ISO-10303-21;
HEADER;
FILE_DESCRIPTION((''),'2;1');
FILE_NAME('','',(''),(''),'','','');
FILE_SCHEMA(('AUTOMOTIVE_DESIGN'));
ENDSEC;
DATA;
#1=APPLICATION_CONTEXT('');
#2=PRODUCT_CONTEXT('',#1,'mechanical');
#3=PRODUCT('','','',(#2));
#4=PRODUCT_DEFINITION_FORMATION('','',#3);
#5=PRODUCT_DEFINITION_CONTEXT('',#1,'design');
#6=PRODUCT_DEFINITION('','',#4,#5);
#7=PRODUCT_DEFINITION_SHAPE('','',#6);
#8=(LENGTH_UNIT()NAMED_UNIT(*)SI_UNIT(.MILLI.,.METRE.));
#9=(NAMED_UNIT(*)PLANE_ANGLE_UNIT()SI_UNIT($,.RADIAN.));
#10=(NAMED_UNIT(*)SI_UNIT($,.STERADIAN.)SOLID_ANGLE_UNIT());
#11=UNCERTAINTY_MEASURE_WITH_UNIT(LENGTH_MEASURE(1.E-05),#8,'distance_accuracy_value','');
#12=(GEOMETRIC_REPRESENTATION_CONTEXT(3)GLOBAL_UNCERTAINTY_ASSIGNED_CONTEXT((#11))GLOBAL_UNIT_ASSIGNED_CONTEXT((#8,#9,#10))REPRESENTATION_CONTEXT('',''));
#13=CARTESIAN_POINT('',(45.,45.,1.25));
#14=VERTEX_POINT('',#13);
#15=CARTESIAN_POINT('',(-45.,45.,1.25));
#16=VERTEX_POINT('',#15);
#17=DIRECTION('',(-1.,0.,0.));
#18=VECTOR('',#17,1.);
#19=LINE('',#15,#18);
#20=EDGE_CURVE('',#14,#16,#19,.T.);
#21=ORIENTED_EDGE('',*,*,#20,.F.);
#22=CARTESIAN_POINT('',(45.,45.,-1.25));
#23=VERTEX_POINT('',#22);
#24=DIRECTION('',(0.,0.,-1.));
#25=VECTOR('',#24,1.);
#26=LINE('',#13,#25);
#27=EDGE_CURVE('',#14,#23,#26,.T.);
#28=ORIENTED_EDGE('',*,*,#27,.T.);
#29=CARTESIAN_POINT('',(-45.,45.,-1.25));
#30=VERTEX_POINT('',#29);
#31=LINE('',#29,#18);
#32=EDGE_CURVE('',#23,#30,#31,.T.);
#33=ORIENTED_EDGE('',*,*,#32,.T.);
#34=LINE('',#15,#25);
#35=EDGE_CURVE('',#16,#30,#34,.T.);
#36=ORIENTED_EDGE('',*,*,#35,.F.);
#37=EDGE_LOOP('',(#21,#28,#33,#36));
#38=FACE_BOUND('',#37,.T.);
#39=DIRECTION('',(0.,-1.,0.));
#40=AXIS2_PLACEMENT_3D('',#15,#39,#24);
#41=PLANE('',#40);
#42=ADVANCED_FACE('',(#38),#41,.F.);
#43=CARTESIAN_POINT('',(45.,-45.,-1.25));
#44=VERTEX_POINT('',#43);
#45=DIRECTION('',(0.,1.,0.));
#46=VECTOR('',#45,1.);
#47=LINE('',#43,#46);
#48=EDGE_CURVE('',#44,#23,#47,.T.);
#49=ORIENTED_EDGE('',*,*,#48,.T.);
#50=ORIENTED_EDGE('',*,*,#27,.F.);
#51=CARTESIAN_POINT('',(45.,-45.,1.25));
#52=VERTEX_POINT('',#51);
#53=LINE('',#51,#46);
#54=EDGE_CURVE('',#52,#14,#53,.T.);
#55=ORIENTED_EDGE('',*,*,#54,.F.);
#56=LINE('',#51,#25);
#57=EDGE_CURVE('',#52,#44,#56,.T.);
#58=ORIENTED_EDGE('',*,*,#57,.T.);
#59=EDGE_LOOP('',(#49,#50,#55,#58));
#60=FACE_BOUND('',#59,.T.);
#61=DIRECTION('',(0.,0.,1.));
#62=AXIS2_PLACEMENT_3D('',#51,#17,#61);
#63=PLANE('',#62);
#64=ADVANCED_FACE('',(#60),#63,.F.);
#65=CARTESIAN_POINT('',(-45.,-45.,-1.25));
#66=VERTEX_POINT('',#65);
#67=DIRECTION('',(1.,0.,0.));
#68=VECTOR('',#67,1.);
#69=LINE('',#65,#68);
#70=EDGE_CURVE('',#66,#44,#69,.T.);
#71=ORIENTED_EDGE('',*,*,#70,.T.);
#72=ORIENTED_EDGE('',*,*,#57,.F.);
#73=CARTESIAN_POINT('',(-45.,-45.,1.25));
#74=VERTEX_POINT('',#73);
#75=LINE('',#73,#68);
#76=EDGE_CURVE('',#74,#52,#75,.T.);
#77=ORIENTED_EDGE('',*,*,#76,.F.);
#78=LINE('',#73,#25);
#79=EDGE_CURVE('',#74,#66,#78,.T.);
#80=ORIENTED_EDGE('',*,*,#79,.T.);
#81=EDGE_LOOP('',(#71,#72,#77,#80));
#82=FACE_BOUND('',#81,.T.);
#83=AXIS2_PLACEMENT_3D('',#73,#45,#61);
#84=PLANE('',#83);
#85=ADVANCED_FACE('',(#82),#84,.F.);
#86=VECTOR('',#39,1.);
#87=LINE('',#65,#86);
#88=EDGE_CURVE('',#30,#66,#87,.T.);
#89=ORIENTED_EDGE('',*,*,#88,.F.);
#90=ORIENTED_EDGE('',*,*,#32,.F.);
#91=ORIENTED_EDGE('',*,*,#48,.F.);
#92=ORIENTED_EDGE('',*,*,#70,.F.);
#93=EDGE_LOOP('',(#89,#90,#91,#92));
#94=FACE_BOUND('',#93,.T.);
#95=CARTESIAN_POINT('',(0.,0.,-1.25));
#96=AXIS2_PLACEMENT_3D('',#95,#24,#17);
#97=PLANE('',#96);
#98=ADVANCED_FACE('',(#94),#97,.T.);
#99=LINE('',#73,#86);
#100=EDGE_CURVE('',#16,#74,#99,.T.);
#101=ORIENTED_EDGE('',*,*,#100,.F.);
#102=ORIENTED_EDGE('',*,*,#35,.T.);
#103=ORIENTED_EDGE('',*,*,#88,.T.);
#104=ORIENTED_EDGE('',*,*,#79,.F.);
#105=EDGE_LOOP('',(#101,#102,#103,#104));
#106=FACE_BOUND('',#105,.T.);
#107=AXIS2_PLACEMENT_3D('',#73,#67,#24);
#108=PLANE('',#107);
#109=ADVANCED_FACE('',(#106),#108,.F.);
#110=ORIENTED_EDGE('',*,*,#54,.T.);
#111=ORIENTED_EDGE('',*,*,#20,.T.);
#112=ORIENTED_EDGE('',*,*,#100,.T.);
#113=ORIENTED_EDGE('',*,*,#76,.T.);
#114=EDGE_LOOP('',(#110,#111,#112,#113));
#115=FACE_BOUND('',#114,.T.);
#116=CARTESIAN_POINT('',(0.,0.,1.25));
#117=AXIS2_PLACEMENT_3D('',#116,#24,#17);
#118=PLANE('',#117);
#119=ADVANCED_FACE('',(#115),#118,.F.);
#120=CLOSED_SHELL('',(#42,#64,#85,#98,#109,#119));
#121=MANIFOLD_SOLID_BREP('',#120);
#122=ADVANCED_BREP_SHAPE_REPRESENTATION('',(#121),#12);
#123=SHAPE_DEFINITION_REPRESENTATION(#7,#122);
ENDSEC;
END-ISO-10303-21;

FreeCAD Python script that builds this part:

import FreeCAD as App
import Part
import Sketcher

doc = App.newDocument("Part")
body = doc.addObject("PartDesign::Body", "Body")

sketch1 = body.newObject("Sketcher::SketchObject", "Sketch")
sketch1.AttachmentSupport = (doc.getObject("XY_Plane"), [""])
sketch1.MapMode = "FlatFace"
sketch1.addGeometry([
    Part.LineSegment(App.Vector(-45, 45, 0), App.Vector(-45, -45, 0)),
    Part.LineSegment(App.Vector(-45, -45, 0), App.Vector(45, -45, 0)),
    Part.LineSegment(App.Vector(45, -45, 0), App.Vector(45, 45, 0)),
    Part.LineSegment(App.Vector(45, 45, 0), App.Vector(-45, 45, 0)),
], False)
sketch1.addConstraint([
    Sketcher.Constraint("Coincident", 0, 2, 1, 1),
    Sketcher.Constraint("Coincident", 1, 2, 2, 1),
    Sketcher.Constraint("Coincident", 2, 2, 3, 1),
    Sketcher.Constraint("Coincident", 3, 2, 0, 1),
    Sketcher.Constraint("Vertical", 0),
    Sketcher.Constraint("Horizontal", 1),
    Sketcher.Constraint("Vertical", 2),
    Sketcher.Constraint("Horizontal", 3),
    Sketcher.Constraint("Symmetric", 0, 2, 2, 2, -1, 1),
    Sketcher.Constraint("Equal", 3, 0),
    Sketcher.Constraint("DistanceX", 1, 1, 1, 2, 90.0),
])
pad1 = body.newObject("PartDesign::Pad", "Pad")
pad1.Profile = sketch1
pad1.Length = 2.5
pad1.Midplane = True

doc.recompute()
